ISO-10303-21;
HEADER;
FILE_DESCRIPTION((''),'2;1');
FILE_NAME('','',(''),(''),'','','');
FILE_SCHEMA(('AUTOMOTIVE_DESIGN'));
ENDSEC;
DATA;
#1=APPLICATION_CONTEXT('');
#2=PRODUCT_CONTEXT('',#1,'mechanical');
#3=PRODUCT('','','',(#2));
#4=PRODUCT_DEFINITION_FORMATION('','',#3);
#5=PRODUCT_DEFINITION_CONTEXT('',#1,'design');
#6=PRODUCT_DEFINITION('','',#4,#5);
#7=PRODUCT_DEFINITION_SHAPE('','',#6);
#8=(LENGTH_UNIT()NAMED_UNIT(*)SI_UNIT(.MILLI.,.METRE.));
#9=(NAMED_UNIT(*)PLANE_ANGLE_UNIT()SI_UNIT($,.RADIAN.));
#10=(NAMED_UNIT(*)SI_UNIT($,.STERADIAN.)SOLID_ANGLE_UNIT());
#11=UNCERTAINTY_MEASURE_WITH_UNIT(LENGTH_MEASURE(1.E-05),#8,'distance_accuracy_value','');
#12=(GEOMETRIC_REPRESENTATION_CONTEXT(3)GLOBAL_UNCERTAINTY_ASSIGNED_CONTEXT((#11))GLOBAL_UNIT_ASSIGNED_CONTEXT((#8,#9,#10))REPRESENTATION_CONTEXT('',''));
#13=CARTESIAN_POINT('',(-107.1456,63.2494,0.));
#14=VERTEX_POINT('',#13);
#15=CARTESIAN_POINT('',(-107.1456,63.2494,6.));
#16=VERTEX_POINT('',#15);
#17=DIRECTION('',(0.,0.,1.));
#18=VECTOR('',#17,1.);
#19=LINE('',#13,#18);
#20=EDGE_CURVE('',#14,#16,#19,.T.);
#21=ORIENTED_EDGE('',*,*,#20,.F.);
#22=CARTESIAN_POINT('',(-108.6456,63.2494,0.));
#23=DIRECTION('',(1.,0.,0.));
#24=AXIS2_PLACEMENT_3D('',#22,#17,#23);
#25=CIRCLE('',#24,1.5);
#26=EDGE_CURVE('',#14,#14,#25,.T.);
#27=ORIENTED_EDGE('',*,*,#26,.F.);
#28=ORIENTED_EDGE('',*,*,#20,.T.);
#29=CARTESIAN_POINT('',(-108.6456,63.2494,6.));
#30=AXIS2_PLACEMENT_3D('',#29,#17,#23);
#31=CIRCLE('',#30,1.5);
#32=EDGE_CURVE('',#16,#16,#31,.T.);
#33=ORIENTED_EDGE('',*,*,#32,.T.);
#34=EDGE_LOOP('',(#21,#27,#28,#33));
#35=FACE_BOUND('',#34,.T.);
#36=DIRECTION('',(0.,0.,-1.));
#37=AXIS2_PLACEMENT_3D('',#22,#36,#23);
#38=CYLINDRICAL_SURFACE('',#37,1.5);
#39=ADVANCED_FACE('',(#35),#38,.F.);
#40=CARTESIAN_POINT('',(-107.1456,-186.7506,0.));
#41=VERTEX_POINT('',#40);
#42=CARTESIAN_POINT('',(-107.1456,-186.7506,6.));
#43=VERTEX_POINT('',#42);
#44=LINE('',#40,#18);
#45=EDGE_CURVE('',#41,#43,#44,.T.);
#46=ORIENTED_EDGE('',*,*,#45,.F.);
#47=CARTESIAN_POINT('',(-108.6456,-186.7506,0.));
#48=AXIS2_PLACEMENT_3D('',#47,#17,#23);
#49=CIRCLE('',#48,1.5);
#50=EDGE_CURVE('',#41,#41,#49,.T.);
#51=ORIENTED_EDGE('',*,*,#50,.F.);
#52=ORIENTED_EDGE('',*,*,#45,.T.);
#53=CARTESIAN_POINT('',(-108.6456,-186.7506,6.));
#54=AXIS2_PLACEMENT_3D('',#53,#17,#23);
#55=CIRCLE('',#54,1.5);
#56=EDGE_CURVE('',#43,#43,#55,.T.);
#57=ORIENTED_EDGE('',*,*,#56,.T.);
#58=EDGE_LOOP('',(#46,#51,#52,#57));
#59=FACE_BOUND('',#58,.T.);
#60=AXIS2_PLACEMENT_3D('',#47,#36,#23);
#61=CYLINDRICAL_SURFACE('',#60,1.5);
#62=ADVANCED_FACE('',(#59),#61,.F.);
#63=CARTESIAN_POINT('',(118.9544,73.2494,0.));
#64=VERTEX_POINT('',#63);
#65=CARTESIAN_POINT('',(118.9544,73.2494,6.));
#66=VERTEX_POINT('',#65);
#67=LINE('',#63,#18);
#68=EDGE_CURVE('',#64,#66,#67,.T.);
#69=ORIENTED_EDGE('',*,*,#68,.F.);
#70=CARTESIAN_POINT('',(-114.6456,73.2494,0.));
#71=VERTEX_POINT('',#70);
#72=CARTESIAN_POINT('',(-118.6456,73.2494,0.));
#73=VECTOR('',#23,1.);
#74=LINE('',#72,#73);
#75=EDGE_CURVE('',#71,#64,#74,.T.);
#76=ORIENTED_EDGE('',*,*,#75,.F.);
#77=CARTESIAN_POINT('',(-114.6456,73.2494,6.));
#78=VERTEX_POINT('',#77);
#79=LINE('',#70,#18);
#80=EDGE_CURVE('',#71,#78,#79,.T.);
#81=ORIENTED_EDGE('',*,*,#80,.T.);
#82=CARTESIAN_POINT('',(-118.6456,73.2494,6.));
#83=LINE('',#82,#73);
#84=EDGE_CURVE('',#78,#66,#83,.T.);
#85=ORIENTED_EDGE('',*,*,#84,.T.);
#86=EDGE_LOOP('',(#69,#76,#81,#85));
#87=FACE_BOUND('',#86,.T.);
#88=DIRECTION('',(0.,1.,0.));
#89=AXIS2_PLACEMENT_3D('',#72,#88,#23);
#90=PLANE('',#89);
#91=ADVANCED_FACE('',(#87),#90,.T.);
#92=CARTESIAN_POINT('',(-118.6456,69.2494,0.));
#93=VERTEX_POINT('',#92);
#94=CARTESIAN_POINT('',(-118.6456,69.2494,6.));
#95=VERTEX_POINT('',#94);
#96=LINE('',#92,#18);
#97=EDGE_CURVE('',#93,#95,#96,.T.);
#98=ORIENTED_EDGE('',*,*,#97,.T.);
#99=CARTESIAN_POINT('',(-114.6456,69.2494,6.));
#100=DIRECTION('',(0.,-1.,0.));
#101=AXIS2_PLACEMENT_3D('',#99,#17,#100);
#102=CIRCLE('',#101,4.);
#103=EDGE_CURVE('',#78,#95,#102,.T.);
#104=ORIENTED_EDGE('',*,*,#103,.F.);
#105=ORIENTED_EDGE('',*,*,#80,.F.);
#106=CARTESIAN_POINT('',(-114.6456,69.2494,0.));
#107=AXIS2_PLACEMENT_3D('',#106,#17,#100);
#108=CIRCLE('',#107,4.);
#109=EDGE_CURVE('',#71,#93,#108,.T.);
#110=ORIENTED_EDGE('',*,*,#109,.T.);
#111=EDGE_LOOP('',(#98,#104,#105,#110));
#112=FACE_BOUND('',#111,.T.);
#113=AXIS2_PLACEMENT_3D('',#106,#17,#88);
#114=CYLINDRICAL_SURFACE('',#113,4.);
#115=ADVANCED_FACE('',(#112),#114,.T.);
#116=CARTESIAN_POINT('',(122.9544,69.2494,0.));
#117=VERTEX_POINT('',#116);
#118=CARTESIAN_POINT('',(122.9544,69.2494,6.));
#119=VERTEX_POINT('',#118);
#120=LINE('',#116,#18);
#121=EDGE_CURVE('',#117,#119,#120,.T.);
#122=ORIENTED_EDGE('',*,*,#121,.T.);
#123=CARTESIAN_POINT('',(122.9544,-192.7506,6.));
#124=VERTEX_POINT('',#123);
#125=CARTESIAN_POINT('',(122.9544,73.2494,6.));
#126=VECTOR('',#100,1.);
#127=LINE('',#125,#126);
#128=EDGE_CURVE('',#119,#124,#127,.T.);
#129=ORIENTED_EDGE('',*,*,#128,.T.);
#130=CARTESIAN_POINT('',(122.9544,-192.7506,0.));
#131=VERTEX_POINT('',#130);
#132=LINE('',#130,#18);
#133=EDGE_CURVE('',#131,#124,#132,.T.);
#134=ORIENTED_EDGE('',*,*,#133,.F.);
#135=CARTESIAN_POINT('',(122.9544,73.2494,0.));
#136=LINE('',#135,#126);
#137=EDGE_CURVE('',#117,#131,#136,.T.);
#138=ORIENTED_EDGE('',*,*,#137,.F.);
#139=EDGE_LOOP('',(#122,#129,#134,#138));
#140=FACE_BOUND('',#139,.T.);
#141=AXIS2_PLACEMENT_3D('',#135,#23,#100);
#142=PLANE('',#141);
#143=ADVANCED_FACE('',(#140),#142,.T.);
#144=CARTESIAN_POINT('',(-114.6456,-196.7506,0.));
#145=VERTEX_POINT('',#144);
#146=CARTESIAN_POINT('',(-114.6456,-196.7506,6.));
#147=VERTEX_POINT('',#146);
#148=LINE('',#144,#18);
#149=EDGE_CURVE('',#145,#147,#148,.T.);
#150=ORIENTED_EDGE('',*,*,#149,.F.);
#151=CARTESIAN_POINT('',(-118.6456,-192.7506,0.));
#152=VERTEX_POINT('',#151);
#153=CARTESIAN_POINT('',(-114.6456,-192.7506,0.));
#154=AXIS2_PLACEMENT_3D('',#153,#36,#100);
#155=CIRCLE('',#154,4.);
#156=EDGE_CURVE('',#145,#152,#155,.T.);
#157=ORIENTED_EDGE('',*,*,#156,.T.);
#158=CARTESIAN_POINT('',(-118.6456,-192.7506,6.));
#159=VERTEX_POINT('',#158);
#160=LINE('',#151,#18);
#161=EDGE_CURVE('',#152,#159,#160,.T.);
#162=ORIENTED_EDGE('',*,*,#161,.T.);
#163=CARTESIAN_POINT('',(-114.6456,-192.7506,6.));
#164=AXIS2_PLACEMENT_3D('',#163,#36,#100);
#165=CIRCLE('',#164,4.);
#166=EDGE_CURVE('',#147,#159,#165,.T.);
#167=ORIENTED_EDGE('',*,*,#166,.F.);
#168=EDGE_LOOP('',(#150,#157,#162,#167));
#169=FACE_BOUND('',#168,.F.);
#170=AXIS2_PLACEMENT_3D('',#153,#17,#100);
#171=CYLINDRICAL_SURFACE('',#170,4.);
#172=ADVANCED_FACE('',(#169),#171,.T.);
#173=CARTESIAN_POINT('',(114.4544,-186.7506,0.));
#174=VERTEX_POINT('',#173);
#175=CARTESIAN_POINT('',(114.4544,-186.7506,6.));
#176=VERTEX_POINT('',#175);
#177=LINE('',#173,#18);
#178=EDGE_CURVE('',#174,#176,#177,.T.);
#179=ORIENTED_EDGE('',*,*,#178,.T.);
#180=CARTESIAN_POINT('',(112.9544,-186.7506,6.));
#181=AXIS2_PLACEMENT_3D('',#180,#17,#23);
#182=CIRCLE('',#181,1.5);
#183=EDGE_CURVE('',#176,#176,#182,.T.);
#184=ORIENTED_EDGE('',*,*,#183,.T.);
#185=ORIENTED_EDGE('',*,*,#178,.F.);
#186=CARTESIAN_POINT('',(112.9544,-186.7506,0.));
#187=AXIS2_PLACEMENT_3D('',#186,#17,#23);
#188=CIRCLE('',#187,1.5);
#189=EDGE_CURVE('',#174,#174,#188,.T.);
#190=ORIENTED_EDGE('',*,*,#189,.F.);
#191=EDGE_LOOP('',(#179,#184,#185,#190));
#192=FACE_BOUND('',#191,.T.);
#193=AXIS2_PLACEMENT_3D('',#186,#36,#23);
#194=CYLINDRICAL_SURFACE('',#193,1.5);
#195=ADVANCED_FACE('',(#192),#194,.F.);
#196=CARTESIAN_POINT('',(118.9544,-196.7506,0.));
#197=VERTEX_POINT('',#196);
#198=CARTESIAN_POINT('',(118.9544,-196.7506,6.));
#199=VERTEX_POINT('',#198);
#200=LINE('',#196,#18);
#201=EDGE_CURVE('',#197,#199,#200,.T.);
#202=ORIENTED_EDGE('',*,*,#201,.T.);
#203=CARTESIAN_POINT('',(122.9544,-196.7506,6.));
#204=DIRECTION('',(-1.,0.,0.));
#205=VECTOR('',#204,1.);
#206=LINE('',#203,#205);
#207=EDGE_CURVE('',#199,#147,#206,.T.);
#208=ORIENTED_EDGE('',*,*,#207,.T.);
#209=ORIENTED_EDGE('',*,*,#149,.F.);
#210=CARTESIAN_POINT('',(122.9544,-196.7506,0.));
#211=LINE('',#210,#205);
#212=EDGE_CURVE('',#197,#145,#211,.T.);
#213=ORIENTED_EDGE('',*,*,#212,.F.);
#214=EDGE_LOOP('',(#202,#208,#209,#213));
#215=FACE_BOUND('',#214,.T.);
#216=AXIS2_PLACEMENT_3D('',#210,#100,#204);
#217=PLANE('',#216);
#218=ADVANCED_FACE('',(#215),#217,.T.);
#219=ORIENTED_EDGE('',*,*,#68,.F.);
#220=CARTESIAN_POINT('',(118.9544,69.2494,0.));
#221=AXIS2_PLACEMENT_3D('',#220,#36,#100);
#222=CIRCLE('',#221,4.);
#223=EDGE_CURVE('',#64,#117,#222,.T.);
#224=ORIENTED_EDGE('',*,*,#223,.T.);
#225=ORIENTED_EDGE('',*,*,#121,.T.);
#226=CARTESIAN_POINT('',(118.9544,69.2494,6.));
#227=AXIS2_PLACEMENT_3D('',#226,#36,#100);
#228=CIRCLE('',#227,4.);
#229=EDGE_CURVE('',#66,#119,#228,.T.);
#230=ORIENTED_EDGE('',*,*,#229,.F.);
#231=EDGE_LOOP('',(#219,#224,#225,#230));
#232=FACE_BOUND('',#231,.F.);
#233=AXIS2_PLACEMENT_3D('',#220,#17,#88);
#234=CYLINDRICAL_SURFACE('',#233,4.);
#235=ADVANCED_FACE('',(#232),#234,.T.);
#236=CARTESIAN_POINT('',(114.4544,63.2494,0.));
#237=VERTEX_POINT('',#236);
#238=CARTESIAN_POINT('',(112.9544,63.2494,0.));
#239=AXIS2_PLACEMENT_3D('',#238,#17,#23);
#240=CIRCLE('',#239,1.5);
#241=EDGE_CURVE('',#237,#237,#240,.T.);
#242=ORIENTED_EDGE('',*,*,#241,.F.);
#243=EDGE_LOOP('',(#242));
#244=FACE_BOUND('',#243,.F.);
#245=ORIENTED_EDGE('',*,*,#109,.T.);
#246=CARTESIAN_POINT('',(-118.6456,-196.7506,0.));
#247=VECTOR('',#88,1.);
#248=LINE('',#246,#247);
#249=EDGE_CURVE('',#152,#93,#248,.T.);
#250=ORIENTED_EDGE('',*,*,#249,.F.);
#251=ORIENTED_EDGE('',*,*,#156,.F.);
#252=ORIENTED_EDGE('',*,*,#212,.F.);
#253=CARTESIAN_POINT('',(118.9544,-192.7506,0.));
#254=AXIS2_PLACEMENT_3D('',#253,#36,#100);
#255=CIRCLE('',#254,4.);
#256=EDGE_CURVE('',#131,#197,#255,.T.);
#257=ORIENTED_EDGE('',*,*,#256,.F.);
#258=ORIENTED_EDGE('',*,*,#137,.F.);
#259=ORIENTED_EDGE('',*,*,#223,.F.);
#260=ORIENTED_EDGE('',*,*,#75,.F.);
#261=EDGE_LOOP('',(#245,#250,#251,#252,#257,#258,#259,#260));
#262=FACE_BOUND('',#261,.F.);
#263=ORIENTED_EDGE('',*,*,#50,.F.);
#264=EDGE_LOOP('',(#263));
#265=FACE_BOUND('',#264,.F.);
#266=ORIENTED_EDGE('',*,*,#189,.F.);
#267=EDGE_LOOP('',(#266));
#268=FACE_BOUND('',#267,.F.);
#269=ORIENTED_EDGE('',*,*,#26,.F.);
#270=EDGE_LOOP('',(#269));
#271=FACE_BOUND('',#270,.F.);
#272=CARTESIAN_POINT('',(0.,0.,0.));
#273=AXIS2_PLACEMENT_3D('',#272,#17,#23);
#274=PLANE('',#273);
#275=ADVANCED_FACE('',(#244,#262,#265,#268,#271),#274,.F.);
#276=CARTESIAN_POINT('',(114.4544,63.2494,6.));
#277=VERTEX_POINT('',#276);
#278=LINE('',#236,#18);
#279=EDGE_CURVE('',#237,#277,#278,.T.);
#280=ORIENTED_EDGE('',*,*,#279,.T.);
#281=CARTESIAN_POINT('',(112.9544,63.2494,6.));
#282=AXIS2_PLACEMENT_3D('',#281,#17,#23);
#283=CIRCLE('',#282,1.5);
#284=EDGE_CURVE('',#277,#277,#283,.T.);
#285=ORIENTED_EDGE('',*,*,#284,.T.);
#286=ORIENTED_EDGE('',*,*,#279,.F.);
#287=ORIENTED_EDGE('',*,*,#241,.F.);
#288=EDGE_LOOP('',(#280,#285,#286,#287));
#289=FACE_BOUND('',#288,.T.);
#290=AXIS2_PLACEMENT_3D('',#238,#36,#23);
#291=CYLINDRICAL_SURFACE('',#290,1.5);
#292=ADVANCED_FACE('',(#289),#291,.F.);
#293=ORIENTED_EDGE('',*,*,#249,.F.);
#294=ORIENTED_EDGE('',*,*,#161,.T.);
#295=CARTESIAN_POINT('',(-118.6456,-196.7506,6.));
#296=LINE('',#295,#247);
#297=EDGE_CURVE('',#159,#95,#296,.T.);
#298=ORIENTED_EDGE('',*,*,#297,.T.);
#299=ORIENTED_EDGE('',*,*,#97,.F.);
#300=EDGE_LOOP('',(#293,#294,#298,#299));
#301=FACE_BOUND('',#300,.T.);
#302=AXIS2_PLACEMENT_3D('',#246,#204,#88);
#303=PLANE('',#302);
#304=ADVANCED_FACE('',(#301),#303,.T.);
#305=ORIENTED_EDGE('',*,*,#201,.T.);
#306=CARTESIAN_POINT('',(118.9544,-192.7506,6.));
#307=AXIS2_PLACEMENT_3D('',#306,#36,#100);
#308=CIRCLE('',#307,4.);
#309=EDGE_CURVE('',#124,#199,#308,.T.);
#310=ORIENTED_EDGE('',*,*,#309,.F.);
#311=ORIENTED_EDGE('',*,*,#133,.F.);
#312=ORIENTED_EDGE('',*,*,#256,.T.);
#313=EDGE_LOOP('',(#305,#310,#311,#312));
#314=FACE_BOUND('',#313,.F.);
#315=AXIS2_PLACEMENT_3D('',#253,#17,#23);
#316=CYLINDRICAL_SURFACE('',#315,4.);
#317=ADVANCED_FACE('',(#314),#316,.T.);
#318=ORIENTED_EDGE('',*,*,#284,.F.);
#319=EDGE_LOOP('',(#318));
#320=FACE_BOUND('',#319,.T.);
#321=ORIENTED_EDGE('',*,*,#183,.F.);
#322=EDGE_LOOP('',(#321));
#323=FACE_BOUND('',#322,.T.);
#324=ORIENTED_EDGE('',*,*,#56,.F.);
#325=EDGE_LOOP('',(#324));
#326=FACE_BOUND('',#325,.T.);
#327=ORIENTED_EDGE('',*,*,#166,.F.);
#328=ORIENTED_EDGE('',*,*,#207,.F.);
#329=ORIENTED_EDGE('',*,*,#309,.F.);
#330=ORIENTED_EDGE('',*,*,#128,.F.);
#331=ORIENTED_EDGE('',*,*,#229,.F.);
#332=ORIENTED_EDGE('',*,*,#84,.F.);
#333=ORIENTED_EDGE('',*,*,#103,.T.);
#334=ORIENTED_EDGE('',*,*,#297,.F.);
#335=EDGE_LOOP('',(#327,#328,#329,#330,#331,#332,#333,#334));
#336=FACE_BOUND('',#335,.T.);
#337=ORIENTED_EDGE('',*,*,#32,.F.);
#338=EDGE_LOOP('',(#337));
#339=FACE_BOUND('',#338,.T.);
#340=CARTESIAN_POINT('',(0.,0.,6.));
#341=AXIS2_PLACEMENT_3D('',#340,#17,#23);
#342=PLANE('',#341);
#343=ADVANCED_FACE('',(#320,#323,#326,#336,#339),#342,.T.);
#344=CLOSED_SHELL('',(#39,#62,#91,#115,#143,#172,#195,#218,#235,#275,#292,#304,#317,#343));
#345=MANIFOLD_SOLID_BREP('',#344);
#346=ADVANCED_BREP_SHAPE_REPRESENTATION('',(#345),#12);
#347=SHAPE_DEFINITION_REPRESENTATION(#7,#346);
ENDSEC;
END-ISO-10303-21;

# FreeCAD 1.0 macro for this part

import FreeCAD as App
import Part
import Sketcher
Q = App.Units.Quantity


def edges_at(feature, points):
    """Names of the edges that pass closest to the given points."""
    edges = feature.Shape.Edges
    near = lambda p: min(range(len(edges)), key=lambda i: edges[i].distToShape(Part.Vertex(*p))[0])
    return sorted({f"Edge{near(p) + 1}" for p in points})


def add_polygon(sketch, points):
    """Adds a closed chain of lines whose ends are joined by coincident constraints."""
    first, n = sketch.GeometryCount, len(points)
    for a, b in zip(points, points[1:] + points[:1]):
        sketch.addGeometry(Part.LineSegment(App.Vector(*a, 0), App.Vector(*b, 0)), False)
    for i in range(n):
        sketch.addConstraint(Sketcher.Constraint("Coincident", first + i, 2, first + (i + 1) % n, 1))

doc = App.newDocument("Part")
body = doc.addObject("PartDesign::Body", "Body")

sketch1 = body.newObject("Sketcher::SketchObject", "Sketch")
sketch1.AttachmentSupport = (doc.getObject("XY_Plane"), [""])
sketch1.MapMode = "FlatFace"
add_polygon(sketch1, [(122.9544, 73.2494), (-118.6456, 73.2494), (-118.6456, -196.7506), (122.9544, -196.7506)])
sketch1.addGeometry(Part.Circle(App.Vector(-108.6456, -186.7506, 0), App.Vector(0, 0, 1), 1.5), False)
sketch1.addGeometry(Part.Circle(App.Vector(112.9544, -186.7506, 0), App.Vector(0, 0, 1), 1.5), False)
sketch1.addGeometry(Part.Circle(App.Vector(-108.6456, 63.2494, 0), App.Vector(0, 0, 1), 1.5), False)
sketch1.addGeometry(Part.Circle(App.Vector(112.9544, 63.2494, 0), App.Vector(0, 0, 1), 1.5), False)
sketch1.addConstraint(Sketcher.Constraint("Horizontal", 0))
sketch1.addConstraint(Sketcher.Constraint("Vertical", 1))
sketch1.addConstraint(Sketcher.Constraint("Horizontal", 2))
sketch1.addConstraint(Sketcher.Constraint("Vertical", 3))
sketch1.addConstraint(Sketcher.Constraint("Equal", 4, 5))
sketch1.addConstraint(Sketcher.Constraint("Equal", 5, 6))
sketch1.addConstraint(Sketcher.Constraint("Equal", 6, 7))
sketch1.addConstraint(Sketcher.Constraint("Horizontal", 4, 3, 5, 3))
sketch1.addConstraint(Sketcher.Constraint("Horizontal", 6, 3, 7, 3))
sketch1.addConstraint(Sketcher.Constraint("Vertical", 4, 3, 6, 3))
sketch1.addConstraint(Sketcher.Constraint("Vertical", 5, 3, 7, 3))
sketch1.addConstraint(Sketcher.Constraint("Diameter", 4, Q("3 mm")))
sketch1.addConstraint(Sketcher.Constraint("DistanceY", 1, 2, 1, 1, Q("270 mm")))
sketch1.addConstraint(Sketcher.Constraint("DistanceX", 0, 2, 0, 1, Q("241.6 mm")))
sketch1.addConstraint(Sketcher.Constraint("DistanceX", 0, 2, 6, 3, Q("10 mm")))
sketch1.addConstraint(Sketcher.Constraint("DistanceY", 6, 3, 0, 2, Q("10 mm")))
sketch1.addConstraint(Sketcher.Constraint("DistanceY", 1, 2, 4, 3, Q("10 mm")))
sketch1.addConstraint(Sketcher.Constraint("DistanceX", 5, 3, 2, 2, Q("10 mm")))
sketch1.addConstraint(Sketcher.Constraint("DistanceX", 4, 3, -1, 1, Q("108.6456 mm")))
sketch1.addConstraint(Sketcher.Constraint("DistanceY", 4, 3, -1, 1, Q("186.7506 mm")))
pad1 = body.newObject("PartDesign::Pad", "Pad")
pad1.Profile = sketch1
pad1.Length = 6
doc.recompute()

fillet = body.newObject("PartDesign::Fillet", "Fillet")
fillet.Base = (pad1, edges_at(pad1, [
    (-118.646, 73.249, 3),
    (122.954, 73.249, 3),
    (122.954, -196.751, 3),
    (-118.646, -196.751, 3),
]))
fillet.Radius = 4

doc.recompute()
